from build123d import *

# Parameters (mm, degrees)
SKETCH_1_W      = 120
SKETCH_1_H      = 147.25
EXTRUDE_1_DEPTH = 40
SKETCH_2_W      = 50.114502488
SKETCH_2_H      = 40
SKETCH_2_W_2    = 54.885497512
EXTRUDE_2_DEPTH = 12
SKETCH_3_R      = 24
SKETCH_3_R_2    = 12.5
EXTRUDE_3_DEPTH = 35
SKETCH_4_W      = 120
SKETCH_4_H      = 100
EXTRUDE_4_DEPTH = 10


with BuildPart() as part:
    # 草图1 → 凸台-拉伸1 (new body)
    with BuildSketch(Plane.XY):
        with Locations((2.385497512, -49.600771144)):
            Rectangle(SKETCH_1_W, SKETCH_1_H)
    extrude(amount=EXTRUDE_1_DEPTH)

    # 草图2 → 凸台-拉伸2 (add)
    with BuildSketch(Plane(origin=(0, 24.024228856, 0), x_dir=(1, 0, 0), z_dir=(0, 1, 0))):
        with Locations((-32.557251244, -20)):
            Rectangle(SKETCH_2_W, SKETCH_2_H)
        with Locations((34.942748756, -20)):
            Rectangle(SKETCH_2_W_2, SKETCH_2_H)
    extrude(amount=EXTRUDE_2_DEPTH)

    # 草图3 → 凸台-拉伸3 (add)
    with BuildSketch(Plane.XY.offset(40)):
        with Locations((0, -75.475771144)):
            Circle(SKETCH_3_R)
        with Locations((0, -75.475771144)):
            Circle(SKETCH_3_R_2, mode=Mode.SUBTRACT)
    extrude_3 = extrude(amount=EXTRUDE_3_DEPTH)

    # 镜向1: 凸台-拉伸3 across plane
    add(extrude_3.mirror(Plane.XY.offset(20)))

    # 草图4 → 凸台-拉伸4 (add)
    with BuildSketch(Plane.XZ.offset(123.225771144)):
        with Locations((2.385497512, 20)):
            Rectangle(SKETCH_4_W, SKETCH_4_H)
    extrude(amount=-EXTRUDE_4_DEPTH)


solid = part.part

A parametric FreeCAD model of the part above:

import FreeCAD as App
import Part
import Sketcher

V = App.Vector
Q = App.Units.Quantity


def add_polygon(sketch, points):
    """Adds a closed chain of lines whose ends are joined by coincident constraints."""
    first, n = sketch.GeometryCount, len(points)
    for a, b in zip(points, points[1:] + points[:1]):
        sketch.addGeometry(Part.LineSegment(App.Vector(*a, 0), App.Vector(*b, 0)), False)
    for i in range(n):
        sketch.addConstraint(Sketcher.Constraint("Coincident", first + i, 2, first + (i + 1) % n, 1))

doc = App.newDocument("Part")
body = doc.addObject("PartDesign::Body", "Body")

# Sketch on XY plane
sketch1 = body.newObject("Sketcher::SketchObject", "Sketch")
sketch1.AttachmentSupport = (doc.getObject("XY_Plane"), [""])
sketch1.MapMode = "FlatFace"
add_polygon(sketch1, [(-58, 24), (-58, -123), (62, -123), (62, 24)])  # lines 0-3
sketch1.addConstraint(Sketcher.Constraint("Vertical", 0))
sketch1.addConstraint(Sketcher.Constraint("Horizontal", 1))
sketch1.addConstraint(Sketcher.Constraint("Vertical", 2))
sketch1.addConstraint(Sketcher.Constraint("Horizontal", 3))
sketch1.addConstraint(Sketcher.Constraint("DistanceX", 1, 1, 1, 2, Q("120 mm")))
sketch1.addConstraint(Sketcher.Constraint("DistanceY", 0, 2, 0, 1, Q("147.25 mm")))
sketch1.addConstraint(Sketcher.Constraint("DistanceY", 0, 2, -1, 1, Q("123.225771 mm")))
sketch1.addConstraint(Sketcher.Constraint("DistanceX", 0, 2, -1, 1, Q("57.614502 mm")))
pad1 = body.newObject("PartDesign::Pad", "Pad")
pad1.Profile = sketch1
pad1.Length = 40

# Sketch on XZ plane
sketch2 = body.newObject("Sketcher::SketchObject", "Sketch001")
sketch2.AttachmentSupport = (doc.getObject("XZ_Plane"), [""])
sketch2.MapMode = "FlatFace"
sketch2.AttachmentOffset = App.Placement(V(0, 0, -24.024229), App.Rotation())
add_polygon(sketch2, [(-58, 0), (-58, 40), (-8, 40), (-8, 0)])  # lines 0-3
add_polygon(sketch2, [(8, 0), (8, 40), (62, 40), (62, 0)])  # lines 4-7
sketch2.addConstraint(Sketcher.Constraint("Vertical", 0))
sketch2.addConstraint(Sketcher.Constraint("Horizontal", 1))
sketch2.addConstraint(Sketcher.Constraint("Vertical", 2))
sketch2.addConstraint(Sketcher.Constraint("Horizontal", 3))
sketch2.addConstraint(Sketcher.Constraint("Vertical", 4))
sketch2.addConstraint(Sketcher.Constraint("Horizontal", 5))
sketch2.addConstraint(Sketcher.Constraint("Vertical", 6))
sketch2.addConstraint(Sketcher.Constraint("Horizontal", 7))
sketch2.addConstraint(Sketcher.Constraint("Symmetric", 2, 2, 7, 2, -1, 1))
sketch2.addConstraint(Sketcher.Constraint("PointOnObject", 2, 2, -1))
sketch2.addConstraint(Sketcher.Constraint("Horizontal", 1, 2, 4, 2))
sketch2.addConstraint(Sketcher.Constraint("DistanceY", 0, 1, 0, 2, Q("40 mm")))
sketch2.addConstraint(Sketcher.Constraint("DistanceX", 1, 2, 4, 2, Q("15 mm")))
sketch2.addConstraint(Sketcher.Constraint("DistanceX", 0, 2, 5, 2, Q("120 mm")))
sketch2.addConstraint(Sketcher.Constraint("DistanceX", 1, 1, 1, 2, Q("50.114502 mm")))
pad2 = body.newObject("PartDesign::Pad", "Pad001")
pad2.Profile = sketch2
pad2.Length = 12
pad2.Reversed = True

# Sketch on XY plane
sketch3 = body.newObject("Sketcher::SketchObject", "Sketch002")
sketch3.AttachmentSupport = (doc.getObject("XY_Plane"), [""])
sketch3.MapMode = "FlatFace"
sketch3.AttachmentOffset = App.Placement(V(0, 0, 40), App.Rotation())
sketch3.addGeometry(Part.Circle(V(0, -75, 0), V(0, 0, 1), 24), False)
sketch3.addGeometry(Part.Circle(V(0, -75, 0), V(0, 0, 1), 12), False)
sketch3.addConstraint(Sketcher.Constraint("Coincident", 1, 3, 0, 3))
sketch3.addConstraint(Sketcher.Constraint("PointOnObject", 0, 3, -2))
sketch3.addConstraint(Sketcher.Constraint("Diameter", 0, Q("48 mm")))
sketch3.addConstraint(Sketcher.Constraint("Diameter", 1, Q("25 mm")))
sketch3.addConstraint(Sketcher.Constraint("DistanceY", 0, 3, -1, 1, Q("75.475771 mm")))
pad3 = body.newObject("PartDesign::Pad", "Pad002")
pad3.Profile = sketch3
pad3.Length = 35
doc.recompute()

datumplane = body.newObject("PartDesign::Plane", "DatumPlane")
datumplane.AttachmentSupport = (doc.getObject("XY_Plane"), [""])
datumplane.MapMode = "FlatFace"
datumplane.AttachmentOffset = App.Placement(V(0, 0, 20), App.Rotation())
mirrored = body.newObject("PartDesign::Mirrored", "Mirrored")
mirrored.Originals = [pad3]
mirrored.MirrorPlane = (datumplane, [""])
body.Tip = mirrored

# Sketch on XZ plane
sketch4 = body.newObject("Sketcher::SketchObject", "Sketch003")
sketch4.AttachmentSupport = (doc.getObject("XZ_Plane"), [""])
sketch4.MapMode = "FlatFace"
sketch4.AttachmentOffset = App.Placement(V(0, 0, 123.225771), App.Rotation())
add_polygon(sketch4, [(-58, 70), (-58, -30), (62, -30), (62, 70)])  # lines 0-3
sketch4.addConstraint(Sketcher.Constraint("Vertical", 0))
sketch4.addConstraint(Sketcher.Constraint("Horizontal", 1))
sketch4.addConstraint(Sketcher.Constraint("Vertical", 2))
sketch4.addConstraint(Sketcher.Constraint("Horizontal", 3))
sketch4.addConstraint(Sketcher.Constraint("DistanceX", 1, 1, 1, 2, Q("120 mm")))
sketch4.addConstraint(Sketcher.Constraint("DistanceY", 0, 2, 0, 1, Q("100 mm")))
sketch4.addConstraint(Sketcher.Constraint("DistanceY", 0, 2, -1, 1, Q("30 mm")))
sketch4.addConstraint(Sketcher.Constraint("DistanceX", 0, 2, -1, 1, Q("57.614502 mm")))
pad4 = body.newObject("PartDesign::Pad", "Pad003")
pad4.Profile = sketch4
pad4.Length = 10
pad4.Reversed = True

doc.recompute()
